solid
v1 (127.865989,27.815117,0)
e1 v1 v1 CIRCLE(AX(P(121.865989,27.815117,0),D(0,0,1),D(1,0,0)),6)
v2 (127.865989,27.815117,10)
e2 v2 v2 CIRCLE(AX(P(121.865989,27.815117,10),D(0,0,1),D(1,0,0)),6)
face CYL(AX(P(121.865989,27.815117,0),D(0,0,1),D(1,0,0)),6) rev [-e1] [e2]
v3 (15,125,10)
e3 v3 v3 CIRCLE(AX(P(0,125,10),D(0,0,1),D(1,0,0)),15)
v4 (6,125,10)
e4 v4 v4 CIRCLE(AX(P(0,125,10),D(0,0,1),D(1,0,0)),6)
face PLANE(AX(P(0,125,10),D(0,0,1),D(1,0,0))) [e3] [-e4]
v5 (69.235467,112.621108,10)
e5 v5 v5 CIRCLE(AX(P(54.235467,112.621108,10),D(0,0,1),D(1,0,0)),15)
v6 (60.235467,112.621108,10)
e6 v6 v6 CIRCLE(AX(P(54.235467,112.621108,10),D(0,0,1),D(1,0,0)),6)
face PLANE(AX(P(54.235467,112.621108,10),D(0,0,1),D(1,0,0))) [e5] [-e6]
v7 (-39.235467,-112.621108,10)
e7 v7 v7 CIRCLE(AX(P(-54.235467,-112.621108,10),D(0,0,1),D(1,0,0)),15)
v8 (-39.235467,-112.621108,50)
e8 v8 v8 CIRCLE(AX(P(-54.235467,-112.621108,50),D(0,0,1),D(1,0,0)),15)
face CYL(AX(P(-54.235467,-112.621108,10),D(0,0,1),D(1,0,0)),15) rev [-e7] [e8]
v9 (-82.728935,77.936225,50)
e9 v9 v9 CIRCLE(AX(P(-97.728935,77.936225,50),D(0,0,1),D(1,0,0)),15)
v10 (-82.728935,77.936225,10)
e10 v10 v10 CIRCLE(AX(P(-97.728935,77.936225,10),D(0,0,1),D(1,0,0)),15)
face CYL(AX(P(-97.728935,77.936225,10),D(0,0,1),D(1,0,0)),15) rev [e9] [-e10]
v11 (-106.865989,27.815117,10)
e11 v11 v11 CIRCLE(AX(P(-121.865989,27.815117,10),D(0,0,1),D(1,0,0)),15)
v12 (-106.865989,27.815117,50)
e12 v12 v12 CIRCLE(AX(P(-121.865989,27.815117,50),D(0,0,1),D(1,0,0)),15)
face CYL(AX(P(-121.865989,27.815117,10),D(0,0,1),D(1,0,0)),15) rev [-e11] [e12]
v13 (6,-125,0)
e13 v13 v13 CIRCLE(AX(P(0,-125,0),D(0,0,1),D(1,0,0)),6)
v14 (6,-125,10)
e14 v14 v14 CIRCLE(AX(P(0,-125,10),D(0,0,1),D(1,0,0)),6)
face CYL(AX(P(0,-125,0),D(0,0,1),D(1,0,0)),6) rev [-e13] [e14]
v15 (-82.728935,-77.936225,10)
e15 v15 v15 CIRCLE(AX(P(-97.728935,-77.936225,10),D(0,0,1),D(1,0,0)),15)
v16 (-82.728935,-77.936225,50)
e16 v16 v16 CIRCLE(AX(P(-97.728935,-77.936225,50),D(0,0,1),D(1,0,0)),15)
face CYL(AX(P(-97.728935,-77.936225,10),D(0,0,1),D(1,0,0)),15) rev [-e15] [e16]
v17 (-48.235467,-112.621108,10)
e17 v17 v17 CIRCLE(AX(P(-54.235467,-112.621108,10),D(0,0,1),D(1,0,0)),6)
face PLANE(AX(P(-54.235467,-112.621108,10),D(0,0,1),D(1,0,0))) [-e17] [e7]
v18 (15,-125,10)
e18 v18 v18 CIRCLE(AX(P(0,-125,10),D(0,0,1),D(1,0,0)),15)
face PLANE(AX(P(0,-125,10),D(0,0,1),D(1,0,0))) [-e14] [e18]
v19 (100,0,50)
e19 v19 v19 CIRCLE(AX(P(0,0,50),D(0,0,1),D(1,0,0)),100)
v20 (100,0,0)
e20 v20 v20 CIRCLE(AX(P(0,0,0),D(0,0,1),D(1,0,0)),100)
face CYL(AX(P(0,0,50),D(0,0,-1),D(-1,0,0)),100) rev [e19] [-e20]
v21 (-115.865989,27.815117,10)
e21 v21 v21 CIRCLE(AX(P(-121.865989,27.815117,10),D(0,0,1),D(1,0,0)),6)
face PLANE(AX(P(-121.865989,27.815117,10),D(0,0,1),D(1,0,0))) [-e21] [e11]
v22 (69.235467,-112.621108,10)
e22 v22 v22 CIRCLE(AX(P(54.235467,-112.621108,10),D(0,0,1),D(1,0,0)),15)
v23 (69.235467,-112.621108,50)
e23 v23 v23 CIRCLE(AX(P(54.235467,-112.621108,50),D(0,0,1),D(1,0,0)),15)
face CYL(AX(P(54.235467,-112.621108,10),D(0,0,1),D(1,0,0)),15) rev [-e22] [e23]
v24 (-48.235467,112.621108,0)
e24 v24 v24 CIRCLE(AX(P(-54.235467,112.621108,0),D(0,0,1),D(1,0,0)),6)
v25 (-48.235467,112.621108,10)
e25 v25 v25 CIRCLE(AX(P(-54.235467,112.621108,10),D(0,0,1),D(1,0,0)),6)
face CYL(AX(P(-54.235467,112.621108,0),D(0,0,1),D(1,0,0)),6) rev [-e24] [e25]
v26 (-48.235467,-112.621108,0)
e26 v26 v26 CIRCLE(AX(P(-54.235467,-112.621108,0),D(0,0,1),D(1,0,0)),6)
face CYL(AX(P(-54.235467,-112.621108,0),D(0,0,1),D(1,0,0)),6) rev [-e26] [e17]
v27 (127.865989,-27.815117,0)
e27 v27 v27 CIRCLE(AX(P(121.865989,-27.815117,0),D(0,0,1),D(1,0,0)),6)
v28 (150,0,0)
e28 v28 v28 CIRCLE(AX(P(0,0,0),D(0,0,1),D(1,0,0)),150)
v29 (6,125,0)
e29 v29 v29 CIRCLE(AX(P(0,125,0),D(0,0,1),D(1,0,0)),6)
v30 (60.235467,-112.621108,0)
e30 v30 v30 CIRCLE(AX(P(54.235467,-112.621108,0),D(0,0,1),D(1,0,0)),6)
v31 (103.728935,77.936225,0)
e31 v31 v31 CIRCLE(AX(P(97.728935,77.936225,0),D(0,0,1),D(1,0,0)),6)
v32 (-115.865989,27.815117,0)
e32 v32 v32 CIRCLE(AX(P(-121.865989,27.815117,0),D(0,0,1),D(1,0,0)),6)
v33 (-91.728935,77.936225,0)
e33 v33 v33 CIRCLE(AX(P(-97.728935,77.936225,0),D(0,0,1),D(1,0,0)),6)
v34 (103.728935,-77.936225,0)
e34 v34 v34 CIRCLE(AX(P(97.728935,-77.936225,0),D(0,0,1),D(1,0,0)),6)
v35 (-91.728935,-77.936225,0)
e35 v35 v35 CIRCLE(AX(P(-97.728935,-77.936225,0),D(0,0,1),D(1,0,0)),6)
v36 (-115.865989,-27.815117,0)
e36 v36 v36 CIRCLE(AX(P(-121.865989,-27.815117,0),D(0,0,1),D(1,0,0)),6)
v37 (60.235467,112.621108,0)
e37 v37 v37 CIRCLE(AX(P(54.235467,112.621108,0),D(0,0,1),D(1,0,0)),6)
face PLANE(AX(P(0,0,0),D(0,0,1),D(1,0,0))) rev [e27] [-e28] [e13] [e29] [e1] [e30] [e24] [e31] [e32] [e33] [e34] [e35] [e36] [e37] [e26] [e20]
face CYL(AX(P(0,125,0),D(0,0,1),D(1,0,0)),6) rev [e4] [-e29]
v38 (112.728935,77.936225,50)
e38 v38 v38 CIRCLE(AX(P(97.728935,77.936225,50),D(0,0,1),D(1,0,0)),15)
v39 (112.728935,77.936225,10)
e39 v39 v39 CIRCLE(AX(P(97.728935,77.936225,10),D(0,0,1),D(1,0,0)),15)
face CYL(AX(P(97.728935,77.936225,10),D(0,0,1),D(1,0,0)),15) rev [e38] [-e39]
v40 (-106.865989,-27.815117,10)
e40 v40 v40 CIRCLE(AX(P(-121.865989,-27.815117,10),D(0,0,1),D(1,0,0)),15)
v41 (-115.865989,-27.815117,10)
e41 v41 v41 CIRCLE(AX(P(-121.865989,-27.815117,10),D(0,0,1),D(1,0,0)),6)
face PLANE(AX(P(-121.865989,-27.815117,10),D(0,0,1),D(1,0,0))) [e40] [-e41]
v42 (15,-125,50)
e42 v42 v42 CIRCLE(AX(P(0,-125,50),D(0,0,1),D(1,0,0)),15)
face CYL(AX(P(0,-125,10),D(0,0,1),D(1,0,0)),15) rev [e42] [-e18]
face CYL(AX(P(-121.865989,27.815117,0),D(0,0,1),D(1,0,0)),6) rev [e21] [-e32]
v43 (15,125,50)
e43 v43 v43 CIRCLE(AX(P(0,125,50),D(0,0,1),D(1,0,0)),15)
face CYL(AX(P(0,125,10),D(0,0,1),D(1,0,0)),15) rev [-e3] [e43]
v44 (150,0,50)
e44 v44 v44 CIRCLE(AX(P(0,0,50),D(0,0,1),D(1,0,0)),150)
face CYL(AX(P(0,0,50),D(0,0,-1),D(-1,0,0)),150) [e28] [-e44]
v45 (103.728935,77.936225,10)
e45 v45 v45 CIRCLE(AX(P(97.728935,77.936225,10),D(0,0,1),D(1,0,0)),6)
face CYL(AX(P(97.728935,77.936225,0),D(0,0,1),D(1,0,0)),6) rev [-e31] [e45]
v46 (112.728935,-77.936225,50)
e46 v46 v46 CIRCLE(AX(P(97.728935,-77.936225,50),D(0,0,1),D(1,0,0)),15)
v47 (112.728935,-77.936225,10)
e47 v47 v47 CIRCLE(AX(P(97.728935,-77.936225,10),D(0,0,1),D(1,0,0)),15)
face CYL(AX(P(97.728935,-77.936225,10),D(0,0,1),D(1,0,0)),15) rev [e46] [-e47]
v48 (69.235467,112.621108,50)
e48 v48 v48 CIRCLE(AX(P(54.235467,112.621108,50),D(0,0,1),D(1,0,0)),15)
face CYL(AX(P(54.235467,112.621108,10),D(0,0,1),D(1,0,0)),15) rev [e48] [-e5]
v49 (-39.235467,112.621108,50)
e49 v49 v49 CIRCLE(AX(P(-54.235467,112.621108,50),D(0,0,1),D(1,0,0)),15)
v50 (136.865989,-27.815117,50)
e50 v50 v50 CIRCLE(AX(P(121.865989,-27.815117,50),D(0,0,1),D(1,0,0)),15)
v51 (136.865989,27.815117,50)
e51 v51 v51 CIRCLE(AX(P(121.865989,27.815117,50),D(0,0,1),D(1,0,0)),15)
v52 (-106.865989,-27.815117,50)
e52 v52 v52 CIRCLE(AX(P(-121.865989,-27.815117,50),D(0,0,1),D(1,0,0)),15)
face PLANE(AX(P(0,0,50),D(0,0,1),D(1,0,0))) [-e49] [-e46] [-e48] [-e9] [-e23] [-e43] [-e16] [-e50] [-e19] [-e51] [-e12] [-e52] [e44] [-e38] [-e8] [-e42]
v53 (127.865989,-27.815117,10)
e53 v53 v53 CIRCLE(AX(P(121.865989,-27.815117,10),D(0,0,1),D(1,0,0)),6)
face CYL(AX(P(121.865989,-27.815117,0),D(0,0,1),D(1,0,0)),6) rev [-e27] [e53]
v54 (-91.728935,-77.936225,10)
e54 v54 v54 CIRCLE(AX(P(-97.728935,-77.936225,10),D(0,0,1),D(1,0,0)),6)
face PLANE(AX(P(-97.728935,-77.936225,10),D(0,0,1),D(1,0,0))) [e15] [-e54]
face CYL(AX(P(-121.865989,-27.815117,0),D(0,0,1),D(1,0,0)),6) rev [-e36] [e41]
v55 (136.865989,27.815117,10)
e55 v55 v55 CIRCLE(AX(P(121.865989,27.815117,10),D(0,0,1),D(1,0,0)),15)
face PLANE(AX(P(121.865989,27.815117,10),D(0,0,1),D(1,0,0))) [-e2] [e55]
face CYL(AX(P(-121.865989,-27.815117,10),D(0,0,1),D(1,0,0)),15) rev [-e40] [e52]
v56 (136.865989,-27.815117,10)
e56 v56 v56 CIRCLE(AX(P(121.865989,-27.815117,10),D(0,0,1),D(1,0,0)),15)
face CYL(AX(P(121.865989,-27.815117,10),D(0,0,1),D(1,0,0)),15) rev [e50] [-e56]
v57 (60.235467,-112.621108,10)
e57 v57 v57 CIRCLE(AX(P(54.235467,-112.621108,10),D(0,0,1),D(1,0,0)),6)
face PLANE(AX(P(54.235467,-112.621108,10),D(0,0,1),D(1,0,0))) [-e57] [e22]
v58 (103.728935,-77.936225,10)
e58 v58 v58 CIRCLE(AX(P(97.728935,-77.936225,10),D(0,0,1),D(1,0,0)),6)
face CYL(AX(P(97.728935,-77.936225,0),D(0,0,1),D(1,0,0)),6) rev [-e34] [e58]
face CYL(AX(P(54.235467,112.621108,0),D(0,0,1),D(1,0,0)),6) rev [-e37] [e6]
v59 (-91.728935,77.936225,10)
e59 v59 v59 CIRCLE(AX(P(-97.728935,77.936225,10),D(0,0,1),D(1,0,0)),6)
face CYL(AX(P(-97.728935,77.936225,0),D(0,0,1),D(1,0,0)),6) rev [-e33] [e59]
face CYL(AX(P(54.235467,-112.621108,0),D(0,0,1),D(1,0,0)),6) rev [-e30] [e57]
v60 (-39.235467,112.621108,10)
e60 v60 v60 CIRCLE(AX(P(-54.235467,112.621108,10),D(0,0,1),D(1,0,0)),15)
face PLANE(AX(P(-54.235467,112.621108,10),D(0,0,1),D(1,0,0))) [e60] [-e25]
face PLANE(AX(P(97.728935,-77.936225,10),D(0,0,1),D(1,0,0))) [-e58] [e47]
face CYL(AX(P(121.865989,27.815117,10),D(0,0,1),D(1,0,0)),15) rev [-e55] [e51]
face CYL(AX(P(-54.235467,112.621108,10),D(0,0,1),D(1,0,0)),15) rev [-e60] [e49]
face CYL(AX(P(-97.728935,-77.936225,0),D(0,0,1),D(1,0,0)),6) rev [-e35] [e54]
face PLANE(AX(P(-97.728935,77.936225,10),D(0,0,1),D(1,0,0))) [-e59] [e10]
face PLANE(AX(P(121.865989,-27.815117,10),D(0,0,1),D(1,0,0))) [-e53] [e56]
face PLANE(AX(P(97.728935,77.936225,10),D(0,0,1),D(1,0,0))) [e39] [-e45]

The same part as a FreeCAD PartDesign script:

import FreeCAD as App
import Part
import Sketcher
from FreeCAD import Vector
Q = App.Units.Quantity

doc = App.newDocument("Part")
body = doc.addObject("PartDesign::Body", "Body")

sketch1 = body.newObject("Sketcher::SketchObject", "Sketch")
sketch1.AttachmentSupport = (doc.getObject("XY_Plane"), [""])
sketch1.MapMode = "FlatFace"
sketch1.addGeometry(Part.Circle(Vector(0, 0, 0), Vector(0, 0, 1), 150), False)
sketch1.addGeometry(Part.Circle(Vector(0, 0, 0), Vector(0, 0, 1), 100), False)
sketch1.addConstraint(Sketcher.Constraint("Coincident", 0, 3, -1, 1))
sketch1.addConstraint(Sketcher.Constraint("Coincident", 1, 3, -1, 1))
sketch1.addConstraint(Sketcher.Constraint("Diameter", 0, Q("300 mm")))
sketch1.addConstraint(Sketcher.Constraint("Diameter", 1, Q("200 mm")))
pad1 = body.newObject("PartDesign::Pad", "Pad")
pad1.Profile = sketch1
pad1.Length = 50

sketch2 = body.newObject("Sketcher::SketchObject", "Sketch001")
sketch2.AttachmentSupport = (doc.getObject("XY_Plane"), [""])
sketch2.MapMode = "FlatFace"
sketch2.AttachmentOffset = App.Placement(Vector(0, 0, 50), App.Rotation())
sketch2.addGeometry(Part.Circle(Vector(0, 125, 0), Vector(0, 0, 1), 15), False)
sketch2.addGeometry(Part.Circle(Vector(54, 113, 0), Vector(0, 0, 1), 15), False)
sketch2.addGeometry(Part.Circle(Vector(98, 78, 0), Vector(0, 0, 1), 15), False)
sketch2.addGeometry(Part.Circle(Vector(122, 28, 0), Vector(0, 0, 1), 15), False)
sketch2.addGeometry(Part.Circle(Vector(122, -28, 0), Vector(0, 0, 1), 15), False)
sketch2.addGeometry(Part.Circle(Vector(98, -78, 0), Vector(0, 0, 1), 15), False)
sketch2.addGeometry(Part.Circle(Vector(54, -113, 0), Vector(0, 0, 1), 15), False)
sketch2.addGeometry(Part.Circle(Vector(0, -125, 0), Vector(0, 0, 1), 15), False)
sketch2.addGeometry(Part.Circle(Vector(-54, -113, 0), Vector(0, 0, 1), 15), False)
sketch2.addGeometry(Part.Circle(Vector(-98, -78, 0), Vector(0, 0, 1), 15), False)
sketch2.addGeometry(Part.Circle(Vector(-122, -28, 0), Vector(0, 0, 1), 15), False)
sketch2.addGeometry(Part.Circle(Vector(-122, 28, 0), Vector(0, 0, 1), 15), False)
sketch2.addGeometry(Part.Circle(Vector(-98, 78, 0), Vector(0, 0, 1), 15), False)
sketch2.addGeometry(Part.Circle(Vector(-54, 113, 0), Vector(0, 0, 1), 15), False)
sketch2.addConstraint(Sketcher.Constraint("Equal", 0, 1))
sketch2.addConstraint(Sketcher.Constraint("Equal", 1, 2))
sketch2.addConstraint(Sketcher.Constraint("Equal", 2, 3))
sketch2.addConstraint(Sketcher.Constraint("Equal", 3, 4))
sketch2.addConstraint(Sketcher.Constraint("Equal", 4, 5))
sketch2.addConstraint(Sketcher.Constraint("Equal", 5, 6))
sketch2.addConstraint(Sketcher.Constraint("Equal", 6, 7))
sketch2.addConstraint(Sketcher.Constraint("Equal", 7, 8))
sketch2.addConstraint(Sketcher.Constraint("Equal", 8, 9))
sketch2.addConstraint(Sketcher.Constraint("Equal", 9, 10))
sketch2.addConstraint(Sketcher.Constraint("Equal", 10, 11))
sketch2.addConstraint(Sketcher.Constraint("Equal", 11, 12))
sketch2.addConstraint(Sketcher.Constraint("Equal", 12, 13))
sketch2.addConstraint(Sketcher.Constraint("Symmetric", 0, 3, 7, 3, -1, 1))
sketch2.addConstraint(Sketcher.Constraint("Symmetric", 1, 3, 8, 3, -1, 1))
sketch2.addConstraint(Sketcher.Constraint("Symmetric", 2, 3, 9, 3, -1, 1))
sketch2.addConstraint(Sketcher.Constraint("Symmetric", 3, 3, 10, 3, -1, 1))
sketch2.addConstraint(Sketcher.Constraint("Symmetric", 4, 3, 11, 3, -1, 1))
sketch2.addConstraint(Sketcher.Constraint("Symmetric", 5, 3, 12, 3, -1, 1))
sketch2.addConstraint(Sketcher.Constraint("Symmetric", 6, 3, 13, 3, -1, 1))
sketch2.addConstraint(Sketcher.Constraint("Symmetric", 6, 3, 8, 3, -2))
sketch2.addConstraint(Sketcher.Constraint("Symmetric", 5, 3, 9, 3, -2))
sketch2.addConstraint(Sketcher.Constraint("Symmetric", 4, 3, 10, 3, -2))
sketch2.addConstraint(Sketcher.Constraint("PointOnObject", 0, 3, -2))
sketch2.addConstraint(Sketcher.Constraint("Diameter", 0, Q("30 mm")))
sketch2.addConstraint(Sketcher.Constraint("DistanceY", -1, 1, 0, 3, Q("125 mm")))
sketch2.addConstraint(Sketcher.Constraint("DistanceY", -1, 1, 1, 3, Q("112.621108 mm")))
sketch2.addConstraint(Sketcher.Constraint("DistanceX", -1, 1, 3, 3, Q("121.865989 mm")))
sketch2.addConstraint(Sketcher.Constraint("DistanceY", 3, 3, 2, 3, Q("50.121108 mm")))
sketch2.addConstraint(Sketcher.Constraint("DistanceX", 1, 3, 3, 3, Q("67.630522 mm")))
sketch2.addConstraint(Sketcher.Constraint("DistanceY", 3, 3, 1, 3, Q("84.805992 mm")))
sketch2.addConstraint(Sketcher.Constraint("DistanceX", 9, 3, 5, 3, Q("195.457871 mm")))
pocket1 = body.newObject("PartDesign::Pocket", "Pocket")
pocket1.Profile = sketch2
pocket1.Length = 40

sketch3 = body.newObject("Sketcher::SketchObject", "Sketch002")
sketch3.AttachmentSupport = (doc.getObject("XY_Plane"), [""])
sketch3.MapMode = "FlatFace"
sketch3.AttachmentOffset = App.Placement(Vector(0, 0, 10), App.Rotation())
sketch3.addGeometry(Part.Circle(Vector(0, 125, 0), Vector(0, 0, 1), 6), False)
sketch3.addGeometry(Part.Circle(Vector(54, 113, 0), Vector(0, 0, 1), 6), False)
sketch3.addGeometry(Part.Circle(Vector(98, 78, 0), Vector(0, 0, 1), 6), False)
sketch3.addGeometry(Part.Circle(Vector(122, 28, 0), Vector(0, 0, 1), 6), False)
sketch3.addGeometry(Part.Circle(Vector(122, -28, 0), Vector(0, 0, 1), 6), False)
sketch3.addGeometry(Part.Circle(Vector(98, -78, 0), Vector(0, 0, 1), 6), False)
sketch3.addGeometry(Part.Circle(Vector(54, -113, 0), Vector(0, 0, 1), 6), False)
sketch3.addGeometry(Part.Circle(Vector(0, -125, 0), Vector(0, 0, 1), 6), False)
sketch3.addGeometry(Part.Circle(Vector(-54, -113, 0), Vector(0, 0, 1), 6), False)
sketch3.addGeometry(Part.Circle(Vector(-98, -78, 0), Vector(0, 0, 1), 6), False)
sketch3.addGeometry(Part.Circle(Vector(-122, -28, 0), Vector(0, 0, 1), 6), False)
sketch3.addGeometry(Part.Circle(Vector(-122, 28, 0), Vector(0, 0, 1), 6), False)
sketch3.addGeometry(Part.Circle(Vector(-98, 78, 0), Vector(0, 0, 1), 6), False)
sketch3.addGeometry(Part.Circle(Vector(-54, 113, 0), Vector(0, 0, 1), 6), False)
sketch3.addConstraint(Sketcher.Constraint("Equal", 0, 1))
sketch3.addConstraint(Sketcher.Constraint("Equal", 1, 2))
sketch3.addConstraint(Sketcher.Constraint("Equal", 2, 3))
sketch3.addConstraint(Sketcher.Constraint("Equal", 3, 4))
sketch3.addConstraint(Sketcher.Constraint("Equal", 4, 5))
sketch3.addConstraint(Sketcher.Constraint("Equal", 5, 6))
sketch3.addConstraint(Sketcher.Constraint("Equal", 6, 7))
sketch3.addConstraint(Sketcher.Constraint("Equal", 7, 8))
sketch3.addConstraint(Sketcher.Constraint("Equal", 8, 9))
sketch3.addConstraint(Sketcher.Constraint("Equal", 9, 10))
sketch3.addConstraint(Sketcher.Constraint("Equal", 10, 11))
sketch3.addConstraint(Sketcher.Constraint("Equal", 11, 12))
sketch3.addConstraint(Sketcher.Constraint("Equal", 12, 13))
sketch3.addConstraint(Sketcher.Constraint("Symmetric", 0, 3, 7, 3, -1, 1))
sketch3.addConstraint(Sketcher.Constraint("Symmetric", 1, 3, 8, 3, -1, 1))
sketch3.addConstraint(Sketcher.Constraint("Symmetric", 2, 3, 9, 3, -1, 1))
sketch3.addConstraint(Sketcher.Constraint("Symmetric", 3, 3, 10, 3, -1, 1))
sketch3.addConstraint(Sketcher.Constraint("Symmetric", 4, 3, 11, 3, -1, 1))
sketch3.addConstraint(Sketcher.Constraint("Symmetric", 5, 3, 12, 3, -1, 1))
sketch3.addConstraint(Sketcher.Constraint("Symmetric", 6, 3, 13, 3, -1, 1))
sketch3.addConstraint(Sketcher.Constraint("Symmetric", 6, 3, 8, 3, -2))
sketch3.addConstraint(Sketcher.Constraint("Symmetric", 5, 3, 9, 3, -2))
sketch3.addConstraint(Sketcher.Constraint("Symmetric", 4, 3, 10, 3, -2))
sketch3.addConstraint(Sketcher.Constraint("PointOnObject", 0, 3, -2))
sketch3.addConstraint(Sketcher.Constraint("Diameter", 0, Q("12 mm")))
sketch3.addConstraint(Sketcher.Constraint("DistanceY", -1, 1, 0, 3, Q("125 mm")))
sketch3.addConstraint(Sketcher.Constraint("DistanceY", -1, 1, 1, 3, Q("112.621108 mm")))
sketch3.addConstraint(Sketcher.Constraint("DistanceX", -1, 1, 3, 3, Q("121.865989 mm")))
sketch3.addConstraint(Sketcher.Constraint("DistanceY", 3, 3, 2, 3, Q("50.121108 mm")))
sketch3.addConstraint(Sketcher.Constraint("DistanceX", 1, 3, 3, 3, Q("67.630522 mm")))
sketch3.addConstraint(Sketcher.Constraint("DistanceY", 3, 3, 1, 3, Q("84.805992 mm")))
sketch3.addConstraint(Sketcher.Constraint("DistanceX", 9, 3, 5, 3, Q("195.457871 mm")))
pocket2 = body.newObject("PartDesign::Pocket", "Pocket001")
pocket2.Profile = sketch3
pocket2.Length = 10

doc.recompute()
